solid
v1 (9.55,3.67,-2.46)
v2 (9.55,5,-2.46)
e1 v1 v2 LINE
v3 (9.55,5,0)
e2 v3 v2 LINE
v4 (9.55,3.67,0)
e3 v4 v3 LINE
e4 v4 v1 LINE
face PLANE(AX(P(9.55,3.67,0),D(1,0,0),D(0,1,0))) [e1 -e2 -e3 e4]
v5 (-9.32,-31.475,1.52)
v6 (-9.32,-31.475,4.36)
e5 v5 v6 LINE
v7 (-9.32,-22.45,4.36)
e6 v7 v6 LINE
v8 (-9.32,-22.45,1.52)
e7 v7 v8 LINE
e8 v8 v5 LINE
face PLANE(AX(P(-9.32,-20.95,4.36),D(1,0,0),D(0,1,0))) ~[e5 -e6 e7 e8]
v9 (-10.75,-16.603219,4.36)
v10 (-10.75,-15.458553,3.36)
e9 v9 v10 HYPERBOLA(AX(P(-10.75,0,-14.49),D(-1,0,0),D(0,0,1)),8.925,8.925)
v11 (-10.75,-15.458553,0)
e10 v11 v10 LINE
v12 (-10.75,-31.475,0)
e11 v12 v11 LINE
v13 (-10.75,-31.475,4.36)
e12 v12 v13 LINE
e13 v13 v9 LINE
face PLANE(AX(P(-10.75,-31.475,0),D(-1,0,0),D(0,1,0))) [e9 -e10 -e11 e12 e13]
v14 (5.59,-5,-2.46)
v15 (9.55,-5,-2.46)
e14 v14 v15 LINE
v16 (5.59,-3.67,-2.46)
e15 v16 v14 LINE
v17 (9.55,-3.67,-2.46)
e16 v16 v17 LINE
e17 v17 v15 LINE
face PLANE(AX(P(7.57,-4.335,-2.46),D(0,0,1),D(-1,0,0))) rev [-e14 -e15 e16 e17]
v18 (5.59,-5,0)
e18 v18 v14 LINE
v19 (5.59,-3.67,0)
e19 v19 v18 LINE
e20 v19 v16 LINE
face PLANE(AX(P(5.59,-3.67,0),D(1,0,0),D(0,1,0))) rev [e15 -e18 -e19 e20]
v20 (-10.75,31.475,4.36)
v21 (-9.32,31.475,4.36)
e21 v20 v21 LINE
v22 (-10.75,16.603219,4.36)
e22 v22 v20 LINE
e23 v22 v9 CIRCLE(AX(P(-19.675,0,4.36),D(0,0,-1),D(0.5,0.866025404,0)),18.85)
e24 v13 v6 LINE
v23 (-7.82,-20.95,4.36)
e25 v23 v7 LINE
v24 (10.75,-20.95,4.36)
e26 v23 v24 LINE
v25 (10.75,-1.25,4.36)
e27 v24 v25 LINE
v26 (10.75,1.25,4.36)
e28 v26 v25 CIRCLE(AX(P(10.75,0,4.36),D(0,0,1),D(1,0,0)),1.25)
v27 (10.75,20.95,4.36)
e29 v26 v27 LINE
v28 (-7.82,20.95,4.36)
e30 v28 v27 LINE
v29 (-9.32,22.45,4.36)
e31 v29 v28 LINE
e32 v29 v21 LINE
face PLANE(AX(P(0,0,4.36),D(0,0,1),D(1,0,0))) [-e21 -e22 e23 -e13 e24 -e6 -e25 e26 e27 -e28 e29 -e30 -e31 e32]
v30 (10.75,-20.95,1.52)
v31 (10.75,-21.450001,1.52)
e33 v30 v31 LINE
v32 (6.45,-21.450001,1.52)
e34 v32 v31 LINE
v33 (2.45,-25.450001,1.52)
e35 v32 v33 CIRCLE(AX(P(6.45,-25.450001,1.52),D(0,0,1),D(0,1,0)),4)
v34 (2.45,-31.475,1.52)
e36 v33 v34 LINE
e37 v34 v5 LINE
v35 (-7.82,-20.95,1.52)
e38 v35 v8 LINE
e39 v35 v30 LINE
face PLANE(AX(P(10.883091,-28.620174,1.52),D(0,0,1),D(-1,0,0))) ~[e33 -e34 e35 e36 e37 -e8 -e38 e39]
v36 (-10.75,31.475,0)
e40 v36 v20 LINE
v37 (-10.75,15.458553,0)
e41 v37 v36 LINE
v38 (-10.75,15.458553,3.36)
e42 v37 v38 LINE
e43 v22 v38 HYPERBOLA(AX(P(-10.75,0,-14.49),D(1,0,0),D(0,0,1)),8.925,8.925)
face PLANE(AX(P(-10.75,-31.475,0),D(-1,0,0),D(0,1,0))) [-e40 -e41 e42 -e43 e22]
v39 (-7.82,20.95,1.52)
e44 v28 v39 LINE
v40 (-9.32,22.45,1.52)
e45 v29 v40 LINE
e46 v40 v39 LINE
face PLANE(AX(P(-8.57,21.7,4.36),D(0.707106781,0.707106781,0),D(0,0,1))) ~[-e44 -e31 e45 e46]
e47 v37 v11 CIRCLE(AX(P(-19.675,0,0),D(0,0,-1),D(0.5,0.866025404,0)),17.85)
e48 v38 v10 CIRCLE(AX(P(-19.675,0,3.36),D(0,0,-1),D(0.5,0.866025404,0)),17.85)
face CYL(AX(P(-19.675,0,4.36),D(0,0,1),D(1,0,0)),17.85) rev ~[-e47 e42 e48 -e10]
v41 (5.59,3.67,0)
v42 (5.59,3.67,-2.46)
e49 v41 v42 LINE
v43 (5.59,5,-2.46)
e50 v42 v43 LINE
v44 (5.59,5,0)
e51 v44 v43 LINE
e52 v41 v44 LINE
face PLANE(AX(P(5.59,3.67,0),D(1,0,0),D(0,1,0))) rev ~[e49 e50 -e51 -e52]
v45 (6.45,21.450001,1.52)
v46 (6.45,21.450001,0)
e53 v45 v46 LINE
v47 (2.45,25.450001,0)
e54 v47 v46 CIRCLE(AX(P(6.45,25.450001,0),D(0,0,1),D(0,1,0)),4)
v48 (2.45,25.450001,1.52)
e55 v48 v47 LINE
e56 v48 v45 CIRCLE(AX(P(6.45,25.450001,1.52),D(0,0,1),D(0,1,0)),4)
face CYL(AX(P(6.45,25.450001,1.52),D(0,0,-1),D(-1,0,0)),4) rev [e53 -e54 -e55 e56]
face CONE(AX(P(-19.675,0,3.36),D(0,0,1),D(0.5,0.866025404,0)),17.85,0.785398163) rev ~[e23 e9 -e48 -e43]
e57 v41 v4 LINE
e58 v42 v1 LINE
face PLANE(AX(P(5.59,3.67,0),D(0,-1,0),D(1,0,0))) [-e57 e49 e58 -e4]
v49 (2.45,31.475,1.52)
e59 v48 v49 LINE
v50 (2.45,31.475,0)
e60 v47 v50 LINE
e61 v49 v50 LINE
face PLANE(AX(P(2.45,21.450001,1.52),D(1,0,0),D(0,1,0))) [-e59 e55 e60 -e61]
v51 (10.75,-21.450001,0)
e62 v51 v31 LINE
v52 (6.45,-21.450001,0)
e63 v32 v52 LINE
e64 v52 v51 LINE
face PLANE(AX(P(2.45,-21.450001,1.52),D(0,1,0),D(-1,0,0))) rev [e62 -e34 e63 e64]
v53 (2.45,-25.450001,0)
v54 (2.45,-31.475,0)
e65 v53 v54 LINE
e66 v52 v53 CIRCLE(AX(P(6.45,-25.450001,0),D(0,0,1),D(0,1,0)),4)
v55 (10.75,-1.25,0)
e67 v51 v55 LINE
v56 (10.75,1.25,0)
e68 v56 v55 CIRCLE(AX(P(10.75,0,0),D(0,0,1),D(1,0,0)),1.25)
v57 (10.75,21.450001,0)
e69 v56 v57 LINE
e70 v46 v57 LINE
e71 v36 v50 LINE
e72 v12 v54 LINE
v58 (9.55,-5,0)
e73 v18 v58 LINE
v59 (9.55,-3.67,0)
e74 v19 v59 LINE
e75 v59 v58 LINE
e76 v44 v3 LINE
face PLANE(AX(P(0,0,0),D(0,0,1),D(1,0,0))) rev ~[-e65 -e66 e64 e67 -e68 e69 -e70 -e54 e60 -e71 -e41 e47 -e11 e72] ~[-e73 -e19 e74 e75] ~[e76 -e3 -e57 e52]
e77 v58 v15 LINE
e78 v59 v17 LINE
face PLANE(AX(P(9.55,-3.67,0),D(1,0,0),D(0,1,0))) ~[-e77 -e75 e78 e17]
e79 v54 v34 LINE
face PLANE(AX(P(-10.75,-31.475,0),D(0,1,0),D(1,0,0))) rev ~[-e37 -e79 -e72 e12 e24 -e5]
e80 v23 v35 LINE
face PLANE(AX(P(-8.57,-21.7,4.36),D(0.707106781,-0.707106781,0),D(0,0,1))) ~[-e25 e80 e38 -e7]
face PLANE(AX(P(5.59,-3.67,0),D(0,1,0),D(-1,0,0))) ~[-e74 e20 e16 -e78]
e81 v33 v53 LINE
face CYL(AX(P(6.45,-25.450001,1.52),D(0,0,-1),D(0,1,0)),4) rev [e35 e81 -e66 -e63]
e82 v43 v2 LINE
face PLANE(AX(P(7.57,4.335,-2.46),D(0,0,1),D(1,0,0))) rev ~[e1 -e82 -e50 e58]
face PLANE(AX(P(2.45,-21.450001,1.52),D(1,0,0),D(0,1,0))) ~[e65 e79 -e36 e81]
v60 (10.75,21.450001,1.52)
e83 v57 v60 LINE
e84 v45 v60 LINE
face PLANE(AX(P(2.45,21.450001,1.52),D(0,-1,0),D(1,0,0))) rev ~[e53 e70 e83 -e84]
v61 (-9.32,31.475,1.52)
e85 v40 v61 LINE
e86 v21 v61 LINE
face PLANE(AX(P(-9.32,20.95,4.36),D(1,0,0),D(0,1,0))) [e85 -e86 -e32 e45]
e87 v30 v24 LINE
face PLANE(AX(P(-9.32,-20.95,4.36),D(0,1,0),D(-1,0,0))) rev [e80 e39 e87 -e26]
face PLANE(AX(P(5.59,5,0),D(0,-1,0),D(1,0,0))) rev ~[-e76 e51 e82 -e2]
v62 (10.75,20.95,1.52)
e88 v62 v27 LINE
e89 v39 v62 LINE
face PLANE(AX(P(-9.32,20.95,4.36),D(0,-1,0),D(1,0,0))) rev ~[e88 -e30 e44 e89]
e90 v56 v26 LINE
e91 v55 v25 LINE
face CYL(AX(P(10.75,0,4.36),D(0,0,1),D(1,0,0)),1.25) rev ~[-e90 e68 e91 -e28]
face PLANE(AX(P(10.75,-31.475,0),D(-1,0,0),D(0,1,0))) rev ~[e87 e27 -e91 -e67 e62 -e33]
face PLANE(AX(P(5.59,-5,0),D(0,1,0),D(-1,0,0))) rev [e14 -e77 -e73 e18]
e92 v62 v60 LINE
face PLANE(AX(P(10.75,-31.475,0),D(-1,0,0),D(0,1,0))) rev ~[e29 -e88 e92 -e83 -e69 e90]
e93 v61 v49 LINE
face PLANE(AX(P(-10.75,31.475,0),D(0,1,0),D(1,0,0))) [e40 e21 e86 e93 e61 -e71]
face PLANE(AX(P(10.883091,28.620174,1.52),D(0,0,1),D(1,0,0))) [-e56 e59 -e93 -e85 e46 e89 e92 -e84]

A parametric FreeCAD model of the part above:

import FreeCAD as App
import Part
import Sketcher
from FreeCAD import Vector
Q = App.Units.Quantity


def edges_at(feature, points):
    """Names of the edges that pass closest to the given points."""
    edges = feature.Shape.Edges
    near = lambda p: min(range(len(edges)), key=lambda i: edges[i].distToShape(Part.Vertex(*p))[0])
    return sorted({f"Edge{near(p) + 1}" for p in points})


def add_polygon(sketch, points):
    """Adds a closed chain of lines whose ends are joined by coincident constraints."""
    first, n = sketch.GeometryCount, len(points)
    for a, b in zip(points, points[1:] + points[:1]):
        sketch.addGeometry(Part.LineSegment(App.Vector(*a, 0), App.Vector(*b, 0)), False)
    for i in range(n):
        sketch.addConstraint(Sketcher.Constraint("Coincident", first + i, 2, first + (i + 1) % n, 1))

doc = App.newDocument("Part")
body = doc.addObject("PartDesign::Body", "Body")

# Sketch on XY plane
sketch1 = body.newObject("Sketcher::SketchObject", "Sketch")
sketch1.AttachmentSupport = (doc.getObject("XY_Plane"), [""])
sketch1.MapMode = "FlatFace"
add_polygon(sketch1, [(-11, 31), (-11, -31), (11, -31), (11, 31)])  # lines 0-3
sketch1.addConstraint([
    Sketcher.Constraint("Vertical", 0),
    Sketcher.Constraint("Horizontal", 1),
    Sketcher.Constraint("Vertical", 2),
    Sketcher.Constraint("Horizontal", 3),
    Sketcher.Constraint("Symmetric", 0, 2, 2, 2, -1, 1),
    Sketcher.Constraint("DistanceX", 1, 1, 1, 2, Q("21.5 mm")),
    Sketcher.Constraint("DistanceY", 0, 2, 0, 1, Q("62.95 mm")),
])
pad1 = body.newObject("PartDesign::Pad", "Pad")
pad1.Profile = sketch1
pad1.Length = 4.36

# Sketch on XY plane
sketch2 = body.newObject("Sketcher::SketchObject", "Sketch001")
sketch2.AttachmentSupport = (doc.getObject("XY_Plane"), [""])
sketch2.MapMode = "FlatFace"
add_polygon(sketch2, [(5.6, 5), (5.6, 3.7), (9.6, 3.7), (9.6, 5)])  # lines 0-3
sketch2.addConstraint([
    Sketcher.Constraint("Vertical", 0),
    Sketcher.Constraint("Horizontal", 1),
    Sketcher.Constraint("Vertical", 2),
    Sketcher.Constraint("Horizontal", 3),
    Sketcher.Constraint("DistanceY", -1, 1, 2, 2, Q("5 mm")),
    Sketcher.Constraint("DistanceX", 1, 1, 1, 2, Q("3.96 mm")),
    Sketcher.Constraint("DistanceY", 0, 2, 0, 1, Q("1.33 mm")),
    Sketcher.Constraint("DistanceX", -1, 1, 0, 2, Q("5.59 mm")),
])
pad2 = body.newObject("PartDesign::Pad", "Pad001")
pad2.Profile = sketch2
pad2.Length = 2.46
pad2.Reversed = True
doc.recompute()

mirrored = body.newObject("PartDesign::Mirrored", "Mirrored")
mirrored.Originals = [pad2]
mirrored.MirrorPlane = (doc.getObject("XZ_Plane"), [""])
body.Tip = mirrored

# Sketch on XY plane
sketch3 = body.newObject("Sketcher::SketchObject", "Sketch002")
sketch3.AttachmentSupport = (doc.getObject("XY_Plane"), [""])
sketch3.MapMode = "FlatFace"
sketch3.AttachmentOffset = App.Placement(Vector(0, 0, 4.36), App.Rotation())
add_polygon(sketch3, [(-9, 36), (-9, 21), (31, 21), (31, 36)])  # lines 0-3
sketch3.addConstraint([
    Sketcher.Constraint("Vertical", 0),
    Sketcher.Constraint("Horizontal", 1),
    Sketcher.Constraint("Vertical", 2),
    Sketcher.Constraint("Horizontal", 3),
    Sketcher.Constraint("DistanceX", 0, 2, -1, 1, Q("9.32 mm")),
    Sketcher.Constraint("DistanceY", -1, 1, 0, 2, Q("20.95 mm")),
    Sketcher.Constraint("DistanceY", 0, 2, 0, 1, Q("15.340348 mm")),
    Sketcher.Constraint("DistanceX", 1, 1, 1, 2, Q("40.406182 mm")),
])
pocket1 = body.newObject("PartDesign::Pocket", "Pocket")
pocket1.Profile = sketch3
pocket1.Length = 2.84
doc.recompute()

chamfer = body.newObject("PartDesign::Chamfer", "Chamfer")
chamfer.Base = (pocket1, edges_at(pocket1, [(-9.32, 20.95, 2.94)]))
chamfer.Size = 1.5
doc.recompute()

mirrored2 = body.newObject("PartDesign::Mirrored", "Mirrored001")
mirrored2.Originals = [pocket1]
mirrored2.MirrorPlane = (doc.getObject("XZ_Plane"), [""])
body.Tip = mirrored2
doc.recompute()

chamfer2 = body.newObject("PartDesign::Chamfer", "Chamfer001")
chamfer2.Base = (mirrored2, edges_at(mirrored2, [(-9.32, -20.95, 2.94)]))
chamfer2.Size = 1.5

# Sketch on XY plane
sketch4 = body.newObject("Sketcher::SketchObject", "Sketch003")
sketch4.AttachmentSupport = (doc.getObject("XY_Plane"), [""])
sketch4.MapMode = "FlatFace"
sketch4.AttachmentOffset = App.Placement(Vector(0, 0, 4.36), App.Rotation())
sketch4.addGeometry(Part.Circle(Vector(10.8, 0, 0), Vector(0, 0, 1), 1.2), False)
sketch4.addConstraint([
    Sketcher.Constraint("PointOnObject", 0, 3, -1),
    Sketcher.Constraint("Diameter", 0, Q("2.5 mm")),
    Sketcher.Constraint("DistanceX", -1, 1, 0, 3, Q("10.75 mm")),
])
pocket2 = body.newObject("PartDesign::Pocket", "Pocket001")
pocket2.Profile = sketch4
pocket2.Type = "ThroughAll"

# Sketch on XY plane
sketch5 = body.newObject("Sketcher::SketchObject", "Sketch004")
sketch5.AttachmentSupport = (doc.getObject("XY_Plane"), [""])
sketch5.MapMode = "FlatFace"
sketch5.AttachmentOffset = App.Placement(Vector(0, 0, 4.36), App.Rotation())
sketch5.addGeometry(Part.Circle(Vector(-20, 0, 0), Vector(0, 0, 1), 18), False)
sketch5.addConstraint([
    Sketcher.Constraint("PointOnObject", 0, 3, -1),
    Sketcher.Constraint("Diameter", 0, Q("35.7 mm")),
    Sketcher.Constraint("DistanceX", 0, 3, -1, 1, Q("19.675 mm")),
])
pocket3 = body.newObject("PartDesign::Pocket", "Pocket002")
pocket3.Profile = sketch5
pocket3.Length = 5
doc.recompute()

chamfer3 = body.newObject("PartDesign::Chamfer", "Chamfer002")
chamfer3.Base = (pocket3, edges_at(pocket3, [(-1.825, 0, 4.36), (-1.825, 0, 4.36)]))
chamfer3.Size = 1

# Sketch on XY plane
sketch6 = body.newObject("Sketcher::SketchObject", "Sketch005")
sketch6.AttachmentSupport = (doc.getObject("XY_Plane"), [""])
sketch6.MapMode = "FlatFace"
sketch6.AttachmentOffset = App.Placement(Vector(0, 0, 1.52), App.Rotation())
add_polygon(sketch6, [(2, 36), (2, 21), (29, 21), (29, 36)])  # lines 0-3
sketch6.addConstraint([
    Sketcher.Constraint("Vertical", 0),
    Sketcher.Constraint("Horizontal", 1),
    Sketcher.Constraint("Vertical", 2),
    Sketcher.Constraint("Horizontal", 3),
    Sketcher.Constraint("DistanceX", -1, 1, 0, 2, Q("2.45 mm")),
    Sketcher.Constraint("DistanceY", -1, 1, 0, 2, Q("21.450001 mm")),
    Sketcher.Constraint("DistanceX", 1, 1, 1, 2, Q("26.6657 mm")),
    Sketcher.Constraint("DistanceY", 0, 2, 0, 1, Q("14.870099 mm")),
])
pocket4 = body.newObject("PartDesign::Pocket", "Pocket003")
pocket4.Profile = sketch6
pocket4.Length = 5
doc.recompute()

fillet = body.newObject("PartDesign::Fillet", "Fillet")
fillet.Base = (pocket4, edges_at(pocket4, [(2.45, 21.45, 0.76)]))
fillet.Radius = 4
doc.recompute()

mirrored3 = body.newObject("PartDesign::Mirrored", "Mirrored002")
mirrored3.Originals = [pocket4]
mirrored3.MirrorPlane = (doc.getObject("XZ_Plane"), [""])
body.Tip = mirrored3
doc.recompute()

fillet2 = body.newObject("PartDesign::Fillet", "Fillet001")
fillet2.Base = (mirrored3, edges_at(mirrored3, [(2.45, -21.45, 0.76)]))
fillet2.Radius = 4

doc.recompute()
